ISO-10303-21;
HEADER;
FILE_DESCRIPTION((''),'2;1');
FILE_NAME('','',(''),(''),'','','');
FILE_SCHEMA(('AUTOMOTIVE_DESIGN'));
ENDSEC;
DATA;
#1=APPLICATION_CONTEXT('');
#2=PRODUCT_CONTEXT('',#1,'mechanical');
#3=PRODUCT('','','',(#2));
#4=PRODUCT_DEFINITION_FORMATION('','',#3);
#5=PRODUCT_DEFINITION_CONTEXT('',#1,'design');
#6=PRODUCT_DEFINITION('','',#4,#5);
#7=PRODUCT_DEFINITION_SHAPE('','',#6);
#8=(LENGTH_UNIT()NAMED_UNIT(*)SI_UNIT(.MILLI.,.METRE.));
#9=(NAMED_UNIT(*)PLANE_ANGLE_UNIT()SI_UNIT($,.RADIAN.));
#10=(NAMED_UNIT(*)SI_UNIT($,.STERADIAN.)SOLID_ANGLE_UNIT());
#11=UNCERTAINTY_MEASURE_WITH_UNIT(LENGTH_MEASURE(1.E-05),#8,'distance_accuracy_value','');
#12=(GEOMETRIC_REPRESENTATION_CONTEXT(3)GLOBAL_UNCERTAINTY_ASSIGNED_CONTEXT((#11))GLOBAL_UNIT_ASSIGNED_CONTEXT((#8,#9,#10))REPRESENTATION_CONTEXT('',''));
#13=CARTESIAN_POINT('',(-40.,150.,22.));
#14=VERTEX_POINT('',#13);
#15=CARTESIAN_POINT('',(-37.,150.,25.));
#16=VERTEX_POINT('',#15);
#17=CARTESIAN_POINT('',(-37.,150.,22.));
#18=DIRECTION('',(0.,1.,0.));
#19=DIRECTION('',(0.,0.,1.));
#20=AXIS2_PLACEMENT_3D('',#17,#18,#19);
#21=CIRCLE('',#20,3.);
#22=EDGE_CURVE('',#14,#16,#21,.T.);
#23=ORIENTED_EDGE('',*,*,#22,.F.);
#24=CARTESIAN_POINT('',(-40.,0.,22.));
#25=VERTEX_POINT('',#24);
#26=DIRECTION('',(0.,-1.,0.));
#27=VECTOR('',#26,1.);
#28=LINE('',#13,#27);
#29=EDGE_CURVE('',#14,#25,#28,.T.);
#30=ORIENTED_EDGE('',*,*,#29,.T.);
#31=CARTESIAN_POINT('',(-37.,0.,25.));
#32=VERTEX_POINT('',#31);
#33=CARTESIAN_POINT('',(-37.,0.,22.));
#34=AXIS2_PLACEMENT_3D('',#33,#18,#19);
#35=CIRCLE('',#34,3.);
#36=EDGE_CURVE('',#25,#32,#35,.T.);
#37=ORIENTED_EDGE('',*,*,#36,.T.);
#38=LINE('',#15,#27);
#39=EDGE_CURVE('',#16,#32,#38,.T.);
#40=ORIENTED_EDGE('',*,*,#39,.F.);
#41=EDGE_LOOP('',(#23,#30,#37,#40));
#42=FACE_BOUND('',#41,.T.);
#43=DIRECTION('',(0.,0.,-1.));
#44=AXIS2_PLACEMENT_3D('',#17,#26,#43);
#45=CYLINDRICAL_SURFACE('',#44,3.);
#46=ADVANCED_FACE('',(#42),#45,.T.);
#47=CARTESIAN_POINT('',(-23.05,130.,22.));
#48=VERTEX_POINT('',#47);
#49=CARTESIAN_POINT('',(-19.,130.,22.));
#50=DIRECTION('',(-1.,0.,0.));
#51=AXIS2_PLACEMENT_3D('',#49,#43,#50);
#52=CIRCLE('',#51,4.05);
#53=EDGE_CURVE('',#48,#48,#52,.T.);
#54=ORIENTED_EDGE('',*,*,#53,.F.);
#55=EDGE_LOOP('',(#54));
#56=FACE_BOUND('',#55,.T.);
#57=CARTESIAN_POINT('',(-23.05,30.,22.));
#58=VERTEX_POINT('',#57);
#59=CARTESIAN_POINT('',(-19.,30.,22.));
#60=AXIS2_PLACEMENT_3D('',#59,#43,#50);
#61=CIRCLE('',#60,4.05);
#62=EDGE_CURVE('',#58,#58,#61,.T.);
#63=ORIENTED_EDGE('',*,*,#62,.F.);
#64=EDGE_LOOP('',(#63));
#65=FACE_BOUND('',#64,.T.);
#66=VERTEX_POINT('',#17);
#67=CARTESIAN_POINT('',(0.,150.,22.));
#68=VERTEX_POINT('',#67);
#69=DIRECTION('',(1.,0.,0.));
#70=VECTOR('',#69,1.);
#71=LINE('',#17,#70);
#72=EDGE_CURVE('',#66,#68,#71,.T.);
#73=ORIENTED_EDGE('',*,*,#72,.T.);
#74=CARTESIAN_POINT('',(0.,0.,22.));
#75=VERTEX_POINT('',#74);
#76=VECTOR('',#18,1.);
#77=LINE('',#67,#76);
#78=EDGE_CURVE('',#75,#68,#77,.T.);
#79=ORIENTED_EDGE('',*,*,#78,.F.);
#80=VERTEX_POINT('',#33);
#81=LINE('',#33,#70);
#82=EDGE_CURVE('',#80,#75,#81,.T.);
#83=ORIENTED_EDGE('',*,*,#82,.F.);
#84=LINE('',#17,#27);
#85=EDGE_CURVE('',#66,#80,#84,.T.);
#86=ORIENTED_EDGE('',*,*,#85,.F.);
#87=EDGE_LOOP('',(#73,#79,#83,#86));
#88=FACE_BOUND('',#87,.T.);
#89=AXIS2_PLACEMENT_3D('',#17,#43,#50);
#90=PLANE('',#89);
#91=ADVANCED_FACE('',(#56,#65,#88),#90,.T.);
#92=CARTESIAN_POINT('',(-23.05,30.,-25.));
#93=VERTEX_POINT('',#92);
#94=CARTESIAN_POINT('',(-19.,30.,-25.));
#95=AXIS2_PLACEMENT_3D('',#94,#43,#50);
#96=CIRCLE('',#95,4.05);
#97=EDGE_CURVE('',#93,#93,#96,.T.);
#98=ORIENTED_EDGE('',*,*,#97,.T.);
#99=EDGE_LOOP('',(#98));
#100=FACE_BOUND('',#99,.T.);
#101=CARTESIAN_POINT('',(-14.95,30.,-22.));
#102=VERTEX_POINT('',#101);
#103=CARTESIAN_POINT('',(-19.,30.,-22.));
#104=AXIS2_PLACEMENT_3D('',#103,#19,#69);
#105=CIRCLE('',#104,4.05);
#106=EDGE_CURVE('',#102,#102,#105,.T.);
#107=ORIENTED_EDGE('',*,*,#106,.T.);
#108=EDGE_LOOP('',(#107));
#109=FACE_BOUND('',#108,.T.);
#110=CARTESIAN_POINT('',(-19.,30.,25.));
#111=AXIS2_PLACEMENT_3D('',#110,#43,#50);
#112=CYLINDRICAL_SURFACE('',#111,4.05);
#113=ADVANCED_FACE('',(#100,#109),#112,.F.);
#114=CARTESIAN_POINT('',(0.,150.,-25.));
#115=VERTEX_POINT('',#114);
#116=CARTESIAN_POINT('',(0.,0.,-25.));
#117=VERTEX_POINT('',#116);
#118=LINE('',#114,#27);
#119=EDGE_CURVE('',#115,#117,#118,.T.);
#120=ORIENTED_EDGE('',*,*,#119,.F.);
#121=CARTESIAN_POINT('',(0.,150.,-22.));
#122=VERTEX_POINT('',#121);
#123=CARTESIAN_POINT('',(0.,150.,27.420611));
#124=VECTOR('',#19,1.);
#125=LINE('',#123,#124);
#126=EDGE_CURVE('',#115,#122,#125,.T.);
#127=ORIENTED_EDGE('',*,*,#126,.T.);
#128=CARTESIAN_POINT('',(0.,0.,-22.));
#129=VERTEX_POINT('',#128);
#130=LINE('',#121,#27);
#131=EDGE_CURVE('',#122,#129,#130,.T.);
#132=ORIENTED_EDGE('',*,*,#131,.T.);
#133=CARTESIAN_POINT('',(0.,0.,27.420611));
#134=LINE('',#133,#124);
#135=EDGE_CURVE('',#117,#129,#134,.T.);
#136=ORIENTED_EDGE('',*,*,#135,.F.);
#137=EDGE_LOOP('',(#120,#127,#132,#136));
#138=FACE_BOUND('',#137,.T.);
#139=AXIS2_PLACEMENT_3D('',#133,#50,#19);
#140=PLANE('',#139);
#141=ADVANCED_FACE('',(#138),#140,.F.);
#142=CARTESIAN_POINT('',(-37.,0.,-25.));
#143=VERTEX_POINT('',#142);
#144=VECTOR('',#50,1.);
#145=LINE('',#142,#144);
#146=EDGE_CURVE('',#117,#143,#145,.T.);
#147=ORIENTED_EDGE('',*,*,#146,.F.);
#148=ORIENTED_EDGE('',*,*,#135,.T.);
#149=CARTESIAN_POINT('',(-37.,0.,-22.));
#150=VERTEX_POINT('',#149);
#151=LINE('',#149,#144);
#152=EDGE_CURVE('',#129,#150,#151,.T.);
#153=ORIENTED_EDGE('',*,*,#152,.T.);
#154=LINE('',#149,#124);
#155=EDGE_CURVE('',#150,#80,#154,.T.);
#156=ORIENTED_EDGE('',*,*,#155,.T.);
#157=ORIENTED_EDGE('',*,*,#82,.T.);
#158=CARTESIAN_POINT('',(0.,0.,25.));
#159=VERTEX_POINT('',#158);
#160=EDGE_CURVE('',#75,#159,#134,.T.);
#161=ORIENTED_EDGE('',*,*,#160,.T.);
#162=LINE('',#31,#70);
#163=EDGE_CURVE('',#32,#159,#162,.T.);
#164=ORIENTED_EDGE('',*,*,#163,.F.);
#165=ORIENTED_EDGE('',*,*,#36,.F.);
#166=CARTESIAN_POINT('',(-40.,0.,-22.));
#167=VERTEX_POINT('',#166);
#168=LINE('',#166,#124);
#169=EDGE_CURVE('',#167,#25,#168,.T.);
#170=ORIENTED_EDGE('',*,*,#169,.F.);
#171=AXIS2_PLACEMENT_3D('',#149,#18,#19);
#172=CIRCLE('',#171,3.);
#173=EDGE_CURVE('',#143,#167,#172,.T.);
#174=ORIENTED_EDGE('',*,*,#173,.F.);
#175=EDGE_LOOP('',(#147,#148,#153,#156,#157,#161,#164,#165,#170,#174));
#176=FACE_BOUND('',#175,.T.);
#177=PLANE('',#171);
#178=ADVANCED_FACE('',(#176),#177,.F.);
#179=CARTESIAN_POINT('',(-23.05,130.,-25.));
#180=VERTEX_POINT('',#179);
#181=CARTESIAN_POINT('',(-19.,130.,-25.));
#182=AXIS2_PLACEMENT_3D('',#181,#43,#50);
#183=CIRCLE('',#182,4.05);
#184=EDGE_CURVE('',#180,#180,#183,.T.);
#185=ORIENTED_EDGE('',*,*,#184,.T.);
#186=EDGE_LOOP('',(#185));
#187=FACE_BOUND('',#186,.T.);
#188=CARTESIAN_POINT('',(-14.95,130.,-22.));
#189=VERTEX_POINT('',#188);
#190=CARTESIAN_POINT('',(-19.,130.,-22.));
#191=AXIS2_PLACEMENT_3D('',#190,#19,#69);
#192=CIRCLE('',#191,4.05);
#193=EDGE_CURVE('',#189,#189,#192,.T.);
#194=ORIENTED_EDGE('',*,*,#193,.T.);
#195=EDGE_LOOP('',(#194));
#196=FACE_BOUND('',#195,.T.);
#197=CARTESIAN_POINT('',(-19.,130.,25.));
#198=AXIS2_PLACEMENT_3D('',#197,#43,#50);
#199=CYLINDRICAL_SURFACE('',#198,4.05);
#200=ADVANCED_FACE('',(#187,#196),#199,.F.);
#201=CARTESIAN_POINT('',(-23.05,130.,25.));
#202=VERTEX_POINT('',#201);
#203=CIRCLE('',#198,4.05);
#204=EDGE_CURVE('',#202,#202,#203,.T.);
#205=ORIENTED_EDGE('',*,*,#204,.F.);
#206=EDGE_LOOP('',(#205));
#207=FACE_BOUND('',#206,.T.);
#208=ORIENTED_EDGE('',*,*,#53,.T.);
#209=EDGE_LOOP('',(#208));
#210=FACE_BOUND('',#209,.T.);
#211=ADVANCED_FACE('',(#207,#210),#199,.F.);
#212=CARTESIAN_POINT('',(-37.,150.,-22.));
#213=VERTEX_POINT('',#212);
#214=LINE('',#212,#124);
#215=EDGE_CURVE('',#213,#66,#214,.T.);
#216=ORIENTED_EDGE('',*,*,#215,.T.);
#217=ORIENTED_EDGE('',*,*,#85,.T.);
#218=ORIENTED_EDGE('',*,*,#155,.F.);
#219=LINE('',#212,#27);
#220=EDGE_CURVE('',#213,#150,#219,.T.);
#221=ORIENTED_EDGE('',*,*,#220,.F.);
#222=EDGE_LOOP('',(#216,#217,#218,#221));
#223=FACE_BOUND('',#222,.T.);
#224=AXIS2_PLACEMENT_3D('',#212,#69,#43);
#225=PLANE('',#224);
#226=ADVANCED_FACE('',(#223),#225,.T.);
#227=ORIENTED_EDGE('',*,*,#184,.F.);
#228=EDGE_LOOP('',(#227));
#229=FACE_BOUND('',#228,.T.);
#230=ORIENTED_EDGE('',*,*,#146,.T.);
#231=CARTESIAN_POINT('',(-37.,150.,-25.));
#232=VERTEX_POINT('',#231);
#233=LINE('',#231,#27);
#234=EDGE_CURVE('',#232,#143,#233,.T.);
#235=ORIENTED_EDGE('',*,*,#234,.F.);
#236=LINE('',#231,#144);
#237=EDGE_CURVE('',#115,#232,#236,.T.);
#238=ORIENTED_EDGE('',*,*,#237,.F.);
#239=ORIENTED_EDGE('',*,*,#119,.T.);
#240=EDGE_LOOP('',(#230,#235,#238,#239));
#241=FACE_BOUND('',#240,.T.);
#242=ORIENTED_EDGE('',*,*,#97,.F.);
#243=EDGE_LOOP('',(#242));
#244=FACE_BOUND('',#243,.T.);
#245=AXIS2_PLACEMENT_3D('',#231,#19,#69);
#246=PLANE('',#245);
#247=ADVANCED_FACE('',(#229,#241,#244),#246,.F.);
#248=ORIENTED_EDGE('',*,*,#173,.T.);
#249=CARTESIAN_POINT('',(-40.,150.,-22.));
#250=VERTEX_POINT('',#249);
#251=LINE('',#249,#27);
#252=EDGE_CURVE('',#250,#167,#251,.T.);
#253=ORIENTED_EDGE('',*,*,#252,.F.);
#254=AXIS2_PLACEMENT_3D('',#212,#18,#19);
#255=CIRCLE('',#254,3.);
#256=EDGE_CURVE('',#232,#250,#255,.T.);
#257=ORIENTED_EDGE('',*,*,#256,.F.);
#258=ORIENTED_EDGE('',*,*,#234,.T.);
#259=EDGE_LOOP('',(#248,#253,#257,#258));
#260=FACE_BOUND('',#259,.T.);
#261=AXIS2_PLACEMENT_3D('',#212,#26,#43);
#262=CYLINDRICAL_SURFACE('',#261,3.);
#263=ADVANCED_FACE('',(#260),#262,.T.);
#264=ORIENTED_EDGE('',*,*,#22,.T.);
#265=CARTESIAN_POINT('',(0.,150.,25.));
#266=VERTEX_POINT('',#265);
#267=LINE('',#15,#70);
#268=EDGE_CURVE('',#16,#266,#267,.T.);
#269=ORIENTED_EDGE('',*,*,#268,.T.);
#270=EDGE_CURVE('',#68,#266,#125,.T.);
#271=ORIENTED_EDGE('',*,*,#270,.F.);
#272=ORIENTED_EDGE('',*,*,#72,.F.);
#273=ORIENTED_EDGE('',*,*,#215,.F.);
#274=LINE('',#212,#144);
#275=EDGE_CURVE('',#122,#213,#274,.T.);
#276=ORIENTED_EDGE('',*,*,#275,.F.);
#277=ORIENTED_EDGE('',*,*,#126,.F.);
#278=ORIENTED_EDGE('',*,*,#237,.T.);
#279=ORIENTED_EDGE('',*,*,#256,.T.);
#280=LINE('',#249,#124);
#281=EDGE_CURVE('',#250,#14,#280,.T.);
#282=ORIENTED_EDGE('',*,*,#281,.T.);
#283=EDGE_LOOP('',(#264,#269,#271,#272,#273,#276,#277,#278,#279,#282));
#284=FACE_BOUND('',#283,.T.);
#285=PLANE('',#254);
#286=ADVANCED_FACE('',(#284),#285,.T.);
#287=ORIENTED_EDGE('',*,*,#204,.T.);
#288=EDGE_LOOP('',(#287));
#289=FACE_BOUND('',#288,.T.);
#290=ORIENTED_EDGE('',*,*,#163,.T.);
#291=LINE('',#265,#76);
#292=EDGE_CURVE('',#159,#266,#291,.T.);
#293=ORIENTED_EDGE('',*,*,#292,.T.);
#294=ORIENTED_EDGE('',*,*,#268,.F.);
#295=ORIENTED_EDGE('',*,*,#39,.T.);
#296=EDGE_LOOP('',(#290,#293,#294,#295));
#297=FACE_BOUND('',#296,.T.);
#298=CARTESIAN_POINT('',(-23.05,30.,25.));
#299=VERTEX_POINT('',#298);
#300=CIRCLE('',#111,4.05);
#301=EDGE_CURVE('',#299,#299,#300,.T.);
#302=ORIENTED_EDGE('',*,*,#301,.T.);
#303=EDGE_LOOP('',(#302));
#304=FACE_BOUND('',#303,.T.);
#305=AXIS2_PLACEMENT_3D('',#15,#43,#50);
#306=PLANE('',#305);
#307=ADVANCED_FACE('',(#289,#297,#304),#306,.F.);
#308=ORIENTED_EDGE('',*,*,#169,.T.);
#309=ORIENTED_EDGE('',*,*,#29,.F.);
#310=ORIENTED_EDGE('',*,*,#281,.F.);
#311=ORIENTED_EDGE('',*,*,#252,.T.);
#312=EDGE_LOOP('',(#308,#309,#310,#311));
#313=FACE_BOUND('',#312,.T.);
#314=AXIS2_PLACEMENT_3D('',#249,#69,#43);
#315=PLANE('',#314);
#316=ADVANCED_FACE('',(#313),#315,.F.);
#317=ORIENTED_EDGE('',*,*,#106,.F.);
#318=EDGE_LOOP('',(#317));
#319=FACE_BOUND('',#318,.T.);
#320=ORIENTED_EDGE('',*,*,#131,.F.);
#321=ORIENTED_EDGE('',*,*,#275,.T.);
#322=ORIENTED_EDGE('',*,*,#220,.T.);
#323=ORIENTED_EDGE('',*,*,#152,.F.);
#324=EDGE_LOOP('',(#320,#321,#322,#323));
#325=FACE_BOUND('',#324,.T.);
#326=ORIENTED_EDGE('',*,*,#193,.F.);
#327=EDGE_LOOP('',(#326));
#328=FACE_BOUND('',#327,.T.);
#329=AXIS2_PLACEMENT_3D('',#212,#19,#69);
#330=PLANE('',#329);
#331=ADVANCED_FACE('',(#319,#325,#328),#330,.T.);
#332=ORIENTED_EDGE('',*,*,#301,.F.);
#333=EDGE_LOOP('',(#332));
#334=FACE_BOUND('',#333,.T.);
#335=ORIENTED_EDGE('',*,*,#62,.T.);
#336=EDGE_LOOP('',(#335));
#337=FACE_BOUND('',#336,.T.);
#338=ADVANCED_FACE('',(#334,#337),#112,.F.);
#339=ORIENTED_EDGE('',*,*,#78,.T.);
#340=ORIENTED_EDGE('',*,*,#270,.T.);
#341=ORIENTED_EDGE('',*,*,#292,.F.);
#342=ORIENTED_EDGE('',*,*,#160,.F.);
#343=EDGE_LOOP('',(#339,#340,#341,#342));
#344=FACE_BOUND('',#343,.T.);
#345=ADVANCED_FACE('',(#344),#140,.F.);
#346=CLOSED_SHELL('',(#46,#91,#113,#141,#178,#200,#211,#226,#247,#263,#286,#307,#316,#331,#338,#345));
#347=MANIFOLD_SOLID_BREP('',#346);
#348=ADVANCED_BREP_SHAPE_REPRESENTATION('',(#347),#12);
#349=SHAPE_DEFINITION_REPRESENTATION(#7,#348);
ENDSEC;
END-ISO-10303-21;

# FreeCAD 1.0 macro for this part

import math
import FreeCAD as App
import Part
import Sketcher
from FreeCAD import Vector
Q = App.Units.Quantity


def add_polygon(sketch, points):
    """Adds a closed chain of lines whose ends are joined by coincident constraints."""
    first, n = sketch.GeometryCount, len(points)
    for a, b in zip(points, points[1:] + points[:1]):
        sketch.addGeometry(Part.LineSegment(App.Vector(*a, 0), App.Vector(*b, 0)), False)
    for i in range(n):
        sketch.addConstraint(Sketcher.Constraint("Coincident", first + i, 2, first + (i + 1) % n, 1))

doc = App.newDocument("Part")
body = doc.addObject("PartDesign::Body", "Body")

# Sketch on XZ plane
sketch1 = body.newObject("Sketcher::SketchObject", "Sketch")
sketch1.AttachmentSupport = (doc.getObject("XZ_Plane"), [""])
sketch1.MapMode = "FlatFace"
sketch1.addGeometry(Part.LineSegment(Vector(40, 22, 0), Vector(40, -22, 0)), False)  # 0
sketch1.addGeometry(Part.ArcOfCircle(Part.Circle(Vector(37, -22, 0), Vector(0, 0, 1), 3), math.radians(-90), math.radians(0)), False)  # 1
sketch1.addGeometry(Part.LineSegment(Vector(37, -25, 0), Vector(-37, -25, 0)), False)  # 2
sketch1.addGeometry(Part.ArcOfCircle(Part.Circle(Vector(-37, -22, 0), Vector(0, 0, 1), 3), math.radians(180), math.radians(270)), False)  # 3
sketch1.addGeometry(Part.LineSegment(Vector(-40, -22, 0), Vector(-40, 22, 0)), False)  # 4
sketch1.addGeometry(Part.ArcOfCircle(Part.Circle(Vector(-37, 22, 0), Vector(0, 0, 1), 3), math.radians(90), math.radians(180)), False)  # 5
sketch1.addGeometry(Part.LineSegment(Vector(-37, 25, 0), Vector(37, 25, 0)), False)  # 6
sketch1.addGeometry(Part.ArcOfCircle(Part.Circle(Vector(37, 22, 0), Vector(0, 0, 1), 3), math.radians(0), math.radians(90)), False)  # 7
add_polygon(sketch1, [(-37, 22), (-37, -22), (37, -22), (37, 22)])  # lines 8-11
sketch1.addConstraint(Sketcher.Constraint("Tangent", 0, 2, 1, 2))
sketch1.addConstraint(Sketcher.Constraint("Tangent", 1, 1, 2, 1))
sketch1.addConstraint(Sketcher.Constraint("Tangent", 2, 2, 3, 2))
sketch1.addConstraint(Sketcher.Constraint("Tangent", 3, 1, 4, 1))
sketch1.addConstraint(Sketcher.Constraint("Tangent", 4, 2, 5, 2))
sketch1.addConstraint(Sketcher.Constraint("Tangent", 5, 1, 6, 1))
sketch1.addConstraint(Sketcher.Constraint("Tangent", 6, 2, 7, 2))
sketch1.addConstraint(Sketcher.Constraint("Tangent", 7, 1, 0, 1))
sketch1.addConstraint(Sketcher.Constraint("Vertical", 0))
sketch1.addConstraint(Sketcher.Constraint("Horizontal", 2))
sketch1.addConstraint(Sketcher.Constraint("Vertical", 4))
sketch1.addConstraint(Sketcher.Constraint("Horizontal", 6))
sketch1.addConstraint(Sketcher.Constraint("Vertical", 8))
sketch1.addConstraint(Sketcher.Constraint("Horizontal", 9))
sketch1.addConstraint(Sketcher.Constraint("Vertical", 10))
sketch1.addConstraint(Sketcher.Constraint("Horizontal", 11))
sketch1.addConstraint(Sketcher.Constraint("Coincident", 8, 2, 3, 3))
sketch1.addConstraint(Sketcher.Constraint("Coincident", 9, 2, 1, 3))
sketch1.addConstraint(Sketcher.Constraint("Coincident", 10, 2, 7, 3))
sketch1.addConstraint(Sketcher.Constraint("Equal", 3, 5))
sketch1.addConstraint(Sketcher.Constraint("Symmetric", 1, 3, 5, 3, -1, 1))
sketch1.addConstraint(Sketcher.Constraint("Radius", 1, Q("3 mm")))
sketch1.addConstraint(Sketcher.Constraint("DistanceX", 2, 2, 2, 1, Q("74 mm")))
sketch1.addConstraint(Sketcher.Constraint("DistanceY", 0, 2, 0, 1, Q("44 mm")))
pad1 = body.newObject("PartDesign::Pad", "Pad")
pad1.Profile = sketch1
pad1.Length = 150
pad1.Reversed = True

# Sketch on XZ plane
sketch2 = body.newObject("Sketcher::SketchObject", "Sketch001")
sketch2.AttachmentSupport = (doc.getObject("XZ_Plane"), [""])
sketch2.MapMode = "FlatFace"
sketch2.AttachmentOffset = App.Placement(Vector(0, 0, -150), App.Rotation())
add_polygon(sketch2, [(0, -31), (0, 27), (41, 27), (41, -31)])  # lines 0-3
sketch2.addConstraint(Sketcher.Constraint("Vertical", 0))
sketch2.addConstraint(Sketcher.Constraint("Horizontal", 1))
sketch2.addConstraint(Sketcher.Constraint("Vertical", 2))
sketch2.addConstraint(Sketcher.Constraint("Horizontal", 3))
sketch2.addConstraint(Sketcher.Constraint("PointOnObject", 0, 2, -2))
sketch2.addConstraint(Sketcher.Constraint("DistanceX", 1, 1, 1, 2, Q("41.14648 mm")))
sketch2.addConstraint(Sketcher.Constraint("DistanceY", 0, 1, 0, 2, Q("58.393385 mm")))
sketch2.addConstraint(Sketcher.Constraint("DistanceY", -1, 1, 0, 2, Q("27.420611 mm")))
pocket1 = body.newObject("PartDesign::Pocket", "Pocket")
pocket1.Profile = sketch2
pocket1.Type = "ThroughAll"
pocket1.Reversed = True

# Sketch on XY plane
sketch3 = body.newObject("Sketcher::SketchObject", "Sketch002")
sketch3.AttachmentSupport = (doc.getObject("XY_Plane"), [""])
sketch3.MapMode = "FlatFace"
sketch3.AttachmentOffset = App.Placement(Vector(0, 0, -25), App.Rotation())
sketch3.addGeometry(Part.Circle(Vector(-19, 130, 0), Vector(0, 0, 1), 4), False)
sketch3.addGeometry(Part.Circle(Vector(-19, 30, 0), Vector(0, 0, 1), 4), False)
sketch3.addConstraint(Sketcher.Constraint("Equal", 0, 1))
sketch3.addConstraint(Sketcher.Constraint("Vertical", 0, 3, 1, 3))
sketch3.addConstraint(Sketcher.Constraint("Diameter", 0, Q("8.1 mm")))
sketch3.addConstraint(Sketcher.Constraint("DistanceX", 0, 3, -1, 1, Q("19 mm")))
sketch3.addConstraint(Sketcher.Constraint("DistanceY", -1, 1, 0, 3, Q("130 mm")))
sketch3.addConstraint(Sketcher.Constraint("DistanceY", -1, 1, 1, 3, Q("30 mm")))
pocket2 = body.newObject("PartDesign::Pocket", "Pocket001")
pocket2.Profile = sketch3
pocket2.Type = "ThroughAll"
pocket2.Reversed = True

doc.recompute()
